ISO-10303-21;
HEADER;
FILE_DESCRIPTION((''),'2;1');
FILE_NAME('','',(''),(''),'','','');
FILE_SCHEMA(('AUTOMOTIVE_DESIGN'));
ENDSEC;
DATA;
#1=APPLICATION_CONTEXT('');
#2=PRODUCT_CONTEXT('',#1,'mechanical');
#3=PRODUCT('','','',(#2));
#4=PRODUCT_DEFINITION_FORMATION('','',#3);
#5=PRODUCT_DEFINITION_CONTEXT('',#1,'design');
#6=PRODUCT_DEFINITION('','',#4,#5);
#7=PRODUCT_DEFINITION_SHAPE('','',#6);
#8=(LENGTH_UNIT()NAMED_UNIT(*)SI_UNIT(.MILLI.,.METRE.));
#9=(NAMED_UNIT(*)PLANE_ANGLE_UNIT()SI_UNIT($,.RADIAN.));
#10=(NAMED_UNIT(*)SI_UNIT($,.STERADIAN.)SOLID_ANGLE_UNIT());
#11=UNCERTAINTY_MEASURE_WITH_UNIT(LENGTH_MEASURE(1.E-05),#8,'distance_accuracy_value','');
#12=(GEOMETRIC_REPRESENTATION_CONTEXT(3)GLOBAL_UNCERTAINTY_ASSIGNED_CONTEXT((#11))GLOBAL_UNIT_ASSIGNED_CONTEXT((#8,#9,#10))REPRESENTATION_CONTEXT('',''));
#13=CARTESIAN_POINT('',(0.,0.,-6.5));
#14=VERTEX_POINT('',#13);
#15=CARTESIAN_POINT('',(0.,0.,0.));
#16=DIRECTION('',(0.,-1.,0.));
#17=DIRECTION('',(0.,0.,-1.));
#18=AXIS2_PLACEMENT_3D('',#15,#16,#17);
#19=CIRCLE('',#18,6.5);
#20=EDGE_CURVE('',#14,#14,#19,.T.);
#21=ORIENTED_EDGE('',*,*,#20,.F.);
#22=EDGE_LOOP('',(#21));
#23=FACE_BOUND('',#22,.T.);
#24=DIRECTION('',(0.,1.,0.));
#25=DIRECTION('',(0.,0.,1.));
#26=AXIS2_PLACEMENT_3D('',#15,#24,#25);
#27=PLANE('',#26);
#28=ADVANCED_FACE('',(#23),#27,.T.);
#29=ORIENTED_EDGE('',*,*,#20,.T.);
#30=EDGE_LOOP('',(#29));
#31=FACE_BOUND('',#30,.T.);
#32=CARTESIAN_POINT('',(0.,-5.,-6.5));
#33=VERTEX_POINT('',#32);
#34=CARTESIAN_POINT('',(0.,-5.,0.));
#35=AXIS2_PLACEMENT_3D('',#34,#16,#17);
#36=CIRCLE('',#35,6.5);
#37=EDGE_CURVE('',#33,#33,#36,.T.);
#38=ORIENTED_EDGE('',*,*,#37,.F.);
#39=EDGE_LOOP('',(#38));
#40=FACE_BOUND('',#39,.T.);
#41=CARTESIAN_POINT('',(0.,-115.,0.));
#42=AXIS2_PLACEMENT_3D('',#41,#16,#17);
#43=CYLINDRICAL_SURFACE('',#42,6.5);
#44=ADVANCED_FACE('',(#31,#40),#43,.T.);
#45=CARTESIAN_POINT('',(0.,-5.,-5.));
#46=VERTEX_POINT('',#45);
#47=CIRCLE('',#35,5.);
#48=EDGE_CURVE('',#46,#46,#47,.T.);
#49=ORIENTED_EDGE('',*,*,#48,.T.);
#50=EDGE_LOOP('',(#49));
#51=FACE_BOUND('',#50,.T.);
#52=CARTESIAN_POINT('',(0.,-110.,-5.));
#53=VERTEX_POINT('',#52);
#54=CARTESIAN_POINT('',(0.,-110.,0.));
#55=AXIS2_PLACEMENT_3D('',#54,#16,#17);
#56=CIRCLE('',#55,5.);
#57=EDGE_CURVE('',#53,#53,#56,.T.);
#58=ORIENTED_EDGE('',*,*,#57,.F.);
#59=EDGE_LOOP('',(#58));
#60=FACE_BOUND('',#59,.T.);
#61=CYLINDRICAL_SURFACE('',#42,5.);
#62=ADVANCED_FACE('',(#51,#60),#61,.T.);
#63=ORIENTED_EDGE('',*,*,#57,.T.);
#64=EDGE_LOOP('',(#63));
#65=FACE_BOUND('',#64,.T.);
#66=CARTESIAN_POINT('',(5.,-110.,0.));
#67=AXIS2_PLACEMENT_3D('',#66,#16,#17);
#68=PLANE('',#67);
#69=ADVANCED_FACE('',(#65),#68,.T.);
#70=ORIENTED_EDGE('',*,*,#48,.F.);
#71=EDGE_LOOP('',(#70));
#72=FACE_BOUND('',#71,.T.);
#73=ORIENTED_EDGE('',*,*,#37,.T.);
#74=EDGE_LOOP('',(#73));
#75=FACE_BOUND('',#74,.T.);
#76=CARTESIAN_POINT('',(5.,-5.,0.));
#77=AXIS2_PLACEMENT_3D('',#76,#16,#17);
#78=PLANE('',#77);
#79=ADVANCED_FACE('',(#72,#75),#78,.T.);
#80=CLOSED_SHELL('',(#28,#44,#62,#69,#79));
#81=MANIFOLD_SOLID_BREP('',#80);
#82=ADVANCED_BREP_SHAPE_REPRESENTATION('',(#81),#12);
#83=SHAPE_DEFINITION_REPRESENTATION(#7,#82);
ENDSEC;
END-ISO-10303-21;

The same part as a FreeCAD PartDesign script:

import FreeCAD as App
import Part
import Sketcher
Q = App.Units.Quantity

doc = App.newDocument("Part")
body = doc.addObject("PartDesign::Body", "Body")

# Sketch on XY plane
sketch1 = body.newObject("Sketcher::SketchObject", "Sketch")
sketch1.AttachmentSupport = (doc.getObject("XY_Plane"), [""])
sketch1.MapMode = "FlatFace"
sketch1.addGeometry(Part.LineSegment(App.Vector(6.5, 0, 0), App.Vector(0, 0, 0)), False)
sketch1.addGeometry(Part.LineSegment(App.Vector(0, 0, 0), App.Vector(0, -110, 0)), False)
sketch1.addGeometry(Part.LineSegment(App.Vector(0, -110, 0), App.Vector(5, -110, 0)), False)
sketch1.addGeometry(Part.LineSegment(App.Vector(5, -110, 0), App.Vector(5, -5, 0)), False)
sketch1.addGeometry(Part.LineSegment(App.Vector(5, -5, 0), App.Vector(6.5, -5, 0)), False)
sketch1.addGeometry(Part.LineSegment(App.Vector(6.5, -5, 0), App.Vector(6.5, 0, 0)), False)
sketch1.addConstraint(Sketcher.Constraint("Coincident", 0, 2, 1, 1))
sketch1.addConstraint(Sketcher.Constraint("Coincident", 1, 2, 2, 1))
sketch1.addConstraint(Sketcher.Constraint("Coincident", 2, 2, 3, 1))
sketch1.addConstraint(Sketcher.Constraint("Coincident", 3, 2, 4, 1))
sketch1.addConstraint(Sketcher.Constraint("Coincident", 4, 2, 5, 1))
sketch1.addConstraint(Sketcher.Constraint("Coincident", 5, 2, 0, 1))
sketch1.addConstraint(Sketcher.Constraint("Horizontal", 0))
sketch1.addConstraint(Sketcher.Constraint("Vertical", 1))
sketch1.addConstraint(Sketcher.Constraint("Horizontal", 2))
sketch1.addConstraint(Sketcher.Constraint("Vertical", 3))
sketch1.addConstraint(Sketcher.Constraint("Horizontal", 4))
sketch1.addConstraint(Sketcher.Constraint("Vertical", 5))
sketch1.addConstraint(Sketcher.Constraint("Coincident", 0, 2, -1, 1))
sketch1.addConstraint(Sketcher.Constraint("Equal", 2, 5))
sketch1.addConstraint(Sketcher.Constraint("DistanceX", 2, 1, 2, 2, Q("5 mm")))
sketch1.addConstraint(Sketcher.Constraint("DistanceY", 1, 2, 1, 1, Q("110 mm")))
sketch1.addConstraint(Sketcher.Constraint("DistanceX", 0, 2, 0, 1, Q("6.5 mm")))
revolution = body.newObject("PartDesign::Revolution", "Revolution")
revolution.Profile = sketch1
revolution.ReferenceAxis = (sketch1, ["V_Axis"])
revolution.Angle = 360

doc.recompute()
